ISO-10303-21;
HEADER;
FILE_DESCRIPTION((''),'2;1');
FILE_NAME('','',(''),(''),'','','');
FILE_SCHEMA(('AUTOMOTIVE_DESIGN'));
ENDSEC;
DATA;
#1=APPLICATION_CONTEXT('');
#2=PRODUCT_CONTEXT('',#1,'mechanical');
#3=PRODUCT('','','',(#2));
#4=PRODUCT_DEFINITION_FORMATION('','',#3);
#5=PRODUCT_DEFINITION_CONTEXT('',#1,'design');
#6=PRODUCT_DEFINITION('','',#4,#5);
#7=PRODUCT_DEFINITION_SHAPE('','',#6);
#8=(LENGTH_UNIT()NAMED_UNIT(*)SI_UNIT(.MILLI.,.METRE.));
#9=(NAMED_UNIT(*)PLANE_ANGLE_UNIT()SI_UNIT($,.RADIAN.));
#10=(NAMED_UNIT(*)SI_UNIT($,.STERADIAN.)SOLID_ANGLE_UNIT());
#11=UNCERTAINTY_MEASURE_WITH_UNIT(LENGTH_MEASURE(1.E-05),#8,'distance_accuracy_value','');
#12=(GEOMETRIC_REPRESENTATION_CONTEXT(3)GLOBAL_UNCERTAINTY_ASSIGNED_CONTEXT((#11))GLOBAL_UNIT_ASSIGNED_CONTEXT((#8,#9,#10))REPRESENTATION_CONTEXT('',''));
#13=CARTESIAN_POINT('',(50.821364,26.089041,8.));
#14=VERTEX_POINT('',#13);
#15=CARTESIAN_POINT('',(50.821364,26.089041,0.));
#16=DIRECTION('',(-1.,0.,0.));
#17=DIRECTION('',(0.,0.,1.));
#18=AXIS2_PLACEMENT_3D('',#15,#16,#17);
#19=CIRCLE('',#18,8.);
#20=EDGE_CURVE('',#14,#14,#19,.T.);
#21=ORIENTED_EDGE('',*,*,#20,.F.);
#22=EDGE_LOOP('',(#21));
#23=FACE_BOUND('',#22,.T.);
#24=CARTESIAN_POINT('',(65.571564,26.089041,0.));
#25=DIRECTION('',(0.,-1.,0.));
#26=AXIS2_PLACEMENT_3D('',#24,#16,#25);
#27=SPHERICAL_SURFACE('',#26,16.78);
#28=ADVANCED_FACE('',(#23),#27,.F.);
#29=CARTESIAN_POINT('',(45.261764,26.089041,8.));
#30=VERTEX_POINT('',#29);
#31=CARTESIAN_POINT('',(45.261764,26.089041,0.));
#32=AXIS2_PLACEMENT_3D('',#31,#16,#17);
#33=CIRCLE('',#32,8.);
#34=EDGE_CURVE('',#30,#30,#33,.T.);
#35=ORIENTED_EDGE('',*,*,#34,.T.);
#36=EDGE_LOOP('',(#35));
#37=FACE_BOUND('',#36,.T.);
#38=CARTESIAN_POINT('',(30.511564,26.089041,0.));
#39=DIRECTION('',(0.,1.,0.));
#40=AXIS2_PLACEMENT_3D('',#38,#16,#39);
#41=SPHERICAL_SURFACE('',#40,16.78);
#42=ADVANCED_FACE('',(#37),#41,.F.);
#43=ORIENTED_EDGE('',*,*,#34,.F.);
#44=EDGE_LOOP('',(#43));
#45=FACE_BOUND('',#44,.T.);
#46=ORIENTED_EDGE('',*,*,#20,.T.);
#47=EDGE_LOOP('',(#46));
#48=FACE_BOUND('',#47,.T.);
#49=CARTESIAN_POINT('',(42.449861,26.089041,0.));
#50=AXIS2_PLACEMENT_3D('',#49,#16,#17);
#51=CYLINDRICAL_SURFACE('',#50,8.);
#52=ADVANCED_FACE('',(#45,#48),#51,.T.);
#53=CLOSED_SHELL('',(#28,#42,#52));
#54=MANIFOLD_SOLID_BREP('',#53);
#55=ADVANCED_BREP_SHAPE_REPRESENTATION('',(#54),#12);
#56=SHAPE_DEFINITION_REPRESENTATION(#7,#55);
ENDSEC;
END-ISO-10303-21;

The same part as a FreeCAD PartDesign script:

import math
import FreeCAD as App
import Part
import Sketcher
from FreeCAD import Vector

doc = App.newDocument("Part")
body = doc.addObject("PartDesign::Body", "Body")

sketch1 = doc.addObject("Sketcher::SketchObject", "Sketch")
body.addObject(sketch1)
sketch1.AttachmentSupport = (doc.XY_Plane, [""])
sketch1.MapMode = "FlatFace"
sketch1.addGeometry([
    Part.LineSegment(Vector(47.3, 26.1, 0), Vector(48.8, 26.1, 0)),
    Part.ArcOfCircle(Part.Circle(Vector(65.6, 26.1, 0), Vector(0, 0, 1), 16.8), math.radians(152), math.radians(180)),
    Part.LineSegment(Vector(50.8, 34.1, 0), Vector(45.3, 34.1, 0)),
    Part.ArcOfCircle(Part.Circle(Vector(30.5, 26.1, 0), Vector(0, 0, 1), 16.8), math.radians(0), math.radians(28)),
], False)
sketch1.addGeometry(Part.LineSegment(Vector(30.5, 26.1, 0), Vector(65.6, 26.1, 0)), True)
sketch1.addConstraint([
    Sketcher.Constraint("Coincident", 0, 2, 1, 2),
    Sketcher.Constraint("Coincident", 1, 1, 2, 1),
    Sketcher.Constraint("Coincident", 2, 2, 3, 2),
    Sketcher.Constraint("Coincident", 3, 1, 0, 1),
    Sketcher.Constraint("Horizontal", 0),
    Sketcher.Constraint("Horizontal", 2),
    Sketcher.Constraint("Horizontal", 4),
    Sketcher.Constraint("Coincident", 4, 1, 3, 3),
    Sketcher.Constraint("Coincident", 4, 2, 1, 3),
    Sketcher.Constraint("Equal", 1, 3),
    Sketcher.Constraint("Horizontal", 3, 3, 0, 2),
    Sketcher.Constraint("Radius", 1, 16.78),
    Sketcher.Constraint("DistanceX", 0, 1, 0, 2, 1.5),
    Sketcher.Constraint("DistanceY", 0, 2, 1, 1, 8.0),
    Sketcher.Constraint("DistanceY", -1, 1, 1, 3, 26.089041),
    Sketcher.Constraint("DistanceX", -1, 1, 1, 3, 65.571564),
])
revolution = doc.addObject("PartDesign::Revolution", "Revolution")
body.addObject(revolution)
revolution.Profile = sketch1
revolution.ReferenceAxis = (sketch1, ["Axis0"])
revolution.Angle = 360

doc.recompute()
